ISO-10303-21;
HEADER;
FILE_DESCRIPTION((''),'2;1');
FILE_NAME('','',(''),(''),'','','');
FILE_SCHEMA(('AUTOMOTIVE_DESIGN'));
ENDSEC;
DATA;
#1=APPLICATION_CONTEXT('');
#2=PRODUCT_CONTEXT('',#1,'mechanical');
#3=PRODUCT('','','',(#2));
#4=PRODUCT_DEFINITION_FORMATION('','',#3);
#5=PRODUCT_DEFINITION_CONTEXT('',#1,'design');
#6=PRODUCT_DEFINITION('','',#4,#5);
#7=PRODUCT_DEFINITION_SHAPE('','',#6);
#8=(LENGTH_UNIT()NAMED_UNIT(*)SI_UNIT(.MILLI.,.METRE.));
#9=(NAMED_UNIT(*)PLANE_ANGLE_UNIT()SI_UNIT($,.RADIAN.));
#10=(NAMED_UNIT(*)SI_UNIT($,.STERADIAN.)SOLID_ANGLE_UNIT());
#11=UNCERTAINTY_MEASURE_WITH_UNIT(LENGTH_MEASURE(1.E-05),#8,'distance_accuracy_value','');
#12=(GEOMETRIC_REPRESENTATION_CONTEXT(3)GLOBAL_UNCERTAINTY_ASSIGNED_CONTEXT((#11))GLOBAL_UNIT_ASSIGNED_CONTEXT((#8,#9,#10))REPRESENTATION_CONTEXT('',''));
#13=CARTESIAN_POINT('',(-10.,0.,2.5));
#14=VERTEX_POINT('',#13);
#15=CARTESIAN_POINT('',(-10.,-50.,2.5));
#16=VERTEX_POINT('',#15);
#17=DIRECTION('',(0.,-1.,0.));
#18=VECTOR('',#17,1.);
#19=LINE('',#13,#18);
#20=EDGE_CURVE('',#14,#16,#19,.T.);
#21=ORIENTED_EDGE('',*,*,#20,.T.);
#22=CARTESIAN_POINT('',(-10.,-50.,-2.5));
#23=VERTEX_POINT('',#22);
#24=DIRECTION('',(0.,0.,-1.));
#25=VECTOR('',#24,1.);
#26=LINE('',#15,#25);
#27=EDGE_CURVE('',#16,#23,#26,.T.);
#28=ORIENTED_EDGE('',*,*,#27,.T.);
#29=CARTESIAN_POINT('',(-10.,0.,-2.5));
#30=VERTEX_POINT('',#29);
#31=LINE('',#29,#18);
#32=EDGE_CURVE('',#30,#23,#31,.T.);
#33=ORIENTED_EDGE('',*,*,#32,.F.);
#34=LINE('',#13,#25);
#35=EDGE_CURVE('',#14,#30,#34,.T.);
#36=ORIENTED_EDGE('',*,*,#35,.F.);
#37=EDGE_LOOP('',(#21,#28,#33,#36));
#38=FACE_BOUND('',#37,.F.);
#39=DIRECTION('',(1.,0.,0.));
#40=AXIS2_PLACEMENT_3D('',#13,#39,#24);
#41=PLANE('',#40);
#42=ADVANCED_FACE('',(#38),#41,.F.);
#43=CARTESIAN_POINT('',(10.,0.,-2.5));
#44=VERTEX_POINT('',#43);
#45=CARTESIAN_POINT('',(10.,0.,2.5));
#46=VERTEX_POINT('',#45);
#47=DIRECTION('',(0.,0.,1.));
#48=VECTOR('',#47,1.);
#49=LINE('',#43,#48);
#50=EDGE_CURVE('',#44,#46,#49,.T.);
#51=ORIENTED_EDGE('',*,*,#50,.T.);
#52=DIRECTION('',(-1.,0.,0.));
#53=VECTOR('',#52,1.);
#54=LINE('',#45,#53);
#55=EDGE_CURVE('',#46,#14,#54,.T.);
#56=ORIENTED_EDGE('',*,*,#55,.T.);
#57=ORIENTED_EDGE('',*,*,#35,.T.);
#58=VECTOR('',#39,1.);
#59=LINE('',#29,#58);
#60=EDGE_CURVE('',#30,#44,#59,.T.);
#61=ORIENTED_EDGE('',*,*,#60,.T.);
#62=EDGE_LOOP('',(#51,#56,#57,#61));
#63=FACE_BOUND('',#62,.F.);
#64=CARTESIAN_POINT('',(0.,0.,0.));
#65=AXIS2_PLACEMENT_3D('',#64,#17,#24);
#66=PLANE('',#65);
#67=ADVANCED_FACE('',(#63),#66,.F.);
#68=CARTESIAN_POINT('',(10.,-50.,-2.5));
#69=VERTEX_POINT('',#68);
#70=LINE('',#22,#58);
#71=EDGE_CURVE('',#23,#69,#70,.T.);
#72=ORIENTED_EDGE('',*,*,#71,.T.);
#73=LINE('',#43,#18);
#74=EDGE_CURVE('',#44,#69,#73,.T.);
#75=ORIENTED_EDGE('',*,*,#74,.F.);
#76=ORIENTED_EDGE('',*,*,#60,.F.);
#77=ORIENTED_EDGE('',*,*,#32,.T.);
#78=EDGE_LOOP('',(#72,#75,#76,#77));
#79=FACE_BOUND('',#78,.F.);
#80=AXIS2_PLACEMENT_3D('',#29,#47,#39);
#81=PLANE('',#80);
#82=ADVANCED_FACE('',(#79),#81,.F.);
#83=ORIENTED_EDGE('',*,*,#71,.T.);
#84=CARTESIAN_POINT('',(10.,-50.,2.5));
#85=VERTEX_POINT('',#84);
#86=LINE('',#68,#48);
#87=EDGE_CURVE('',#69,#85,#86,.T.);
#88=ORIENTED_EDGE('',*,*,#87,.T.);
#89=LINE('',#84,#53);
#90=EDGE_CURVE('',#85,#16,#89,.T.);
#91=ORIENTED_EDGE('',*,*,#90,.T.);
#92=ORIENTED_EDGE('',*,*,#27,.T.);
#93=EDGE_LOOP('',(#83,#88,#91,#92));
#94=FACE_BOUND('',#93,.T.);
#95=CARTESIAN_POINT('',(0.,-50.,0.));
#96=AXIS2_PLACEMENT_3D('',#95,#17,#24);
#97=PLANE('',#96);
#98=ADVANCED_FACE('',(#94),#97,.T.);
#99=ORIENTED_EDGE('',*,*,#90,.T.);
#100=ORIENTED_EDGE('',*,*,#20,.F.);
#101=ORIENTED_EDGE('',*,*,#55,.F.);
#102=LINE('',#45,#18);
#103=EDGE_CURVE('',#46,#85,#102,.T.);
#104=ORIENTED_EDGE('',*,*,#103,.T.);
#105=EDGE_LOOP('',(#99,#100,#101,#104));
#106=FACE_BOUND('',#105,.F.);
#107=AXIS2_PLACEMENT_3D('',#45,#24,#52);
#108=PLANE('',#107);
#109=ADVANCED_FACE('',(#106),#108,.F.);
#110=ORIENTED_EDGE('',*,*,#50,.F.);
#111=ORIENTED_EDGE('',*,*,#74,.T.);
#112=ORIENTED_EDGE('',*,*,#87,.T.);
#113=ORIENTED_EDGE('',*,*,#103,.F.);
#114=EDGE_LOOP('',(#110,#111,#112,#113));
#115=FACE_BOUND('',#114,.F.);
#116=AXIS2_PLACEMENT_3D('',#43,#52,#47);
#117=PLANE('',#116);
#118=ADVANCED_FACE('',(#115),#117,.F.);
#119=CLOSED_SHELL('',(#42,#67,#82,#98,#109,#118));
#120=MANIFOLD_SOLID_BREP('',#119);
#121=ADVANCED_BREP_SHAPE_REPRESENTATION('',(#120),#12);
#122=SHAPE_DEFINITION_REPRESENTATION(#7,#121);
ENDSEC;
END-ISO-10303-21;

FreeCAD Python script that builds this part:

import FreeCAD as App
import Part
import Sketcher
from FreeCAD import Vector
Q = App.Units.Quantity

doc = App.newDocument("Part")
body = doc.addObject("PartDesign::Body", "Body")

# Sketch on XZ plane
sketch1 = body.newObject("Sketcher::SketchObject", "Sketch")
sketch1.AttachmentSupport = (doc.getObject("XZ_Plane"), [""])
sketch1.MapMode = "FlatFace"
sketch1.addGeometry([
    Part.LineSegment(Vector(10, 2.5, 0), Vector(-10, 2.5, 0)),
    Part.LineSegment(Vector(-10, 2.5, 0), Vector(-10, -2.5, 0)),
    Part.LineSegment(Vector(-10, -2.5, 0), Vector(10, -2.5, 0)),
    Part.LineSegment(Vector(10, -2.5, 0), Vector(10, 2.5, 0)),
], False)
sketch1.addConstraint([
    Sketcher.Constraint("Coincident", 0, 2, 1, 1),
    Sketcher.Constraint("Coincident", 1, 2, 2, 1),
    Sketcher.Constraint("Coincident", 2, 2, 3, 1),
    Sketcher.Constraint("Coincident", 3, 2, 0, 1),
    Sketcher.Constraint("Horizontal", 0),
    Sketcher.Constraint("Vertical", 1),
    Sketcher.Constraint("Horizontal", 2),
    Sketcher.Constraint("Vertical", 3),
    Sketcher.Constraint("Symmetric", 0, 2, 2, 2, -1, 1),
    Sketcher.Constraint("DistanceX", 0, 2, 0, 1, Q("20 mm")),
    Sketcher.Constraint("DistanceY", 1, 2, 1, 1, Q("5 mm")),
])
pad1 = body.newObject("PartDesign::Pad", "Pad")
pad1.Profile = sketch1
pad1.Length = 50

doc.recompute()
